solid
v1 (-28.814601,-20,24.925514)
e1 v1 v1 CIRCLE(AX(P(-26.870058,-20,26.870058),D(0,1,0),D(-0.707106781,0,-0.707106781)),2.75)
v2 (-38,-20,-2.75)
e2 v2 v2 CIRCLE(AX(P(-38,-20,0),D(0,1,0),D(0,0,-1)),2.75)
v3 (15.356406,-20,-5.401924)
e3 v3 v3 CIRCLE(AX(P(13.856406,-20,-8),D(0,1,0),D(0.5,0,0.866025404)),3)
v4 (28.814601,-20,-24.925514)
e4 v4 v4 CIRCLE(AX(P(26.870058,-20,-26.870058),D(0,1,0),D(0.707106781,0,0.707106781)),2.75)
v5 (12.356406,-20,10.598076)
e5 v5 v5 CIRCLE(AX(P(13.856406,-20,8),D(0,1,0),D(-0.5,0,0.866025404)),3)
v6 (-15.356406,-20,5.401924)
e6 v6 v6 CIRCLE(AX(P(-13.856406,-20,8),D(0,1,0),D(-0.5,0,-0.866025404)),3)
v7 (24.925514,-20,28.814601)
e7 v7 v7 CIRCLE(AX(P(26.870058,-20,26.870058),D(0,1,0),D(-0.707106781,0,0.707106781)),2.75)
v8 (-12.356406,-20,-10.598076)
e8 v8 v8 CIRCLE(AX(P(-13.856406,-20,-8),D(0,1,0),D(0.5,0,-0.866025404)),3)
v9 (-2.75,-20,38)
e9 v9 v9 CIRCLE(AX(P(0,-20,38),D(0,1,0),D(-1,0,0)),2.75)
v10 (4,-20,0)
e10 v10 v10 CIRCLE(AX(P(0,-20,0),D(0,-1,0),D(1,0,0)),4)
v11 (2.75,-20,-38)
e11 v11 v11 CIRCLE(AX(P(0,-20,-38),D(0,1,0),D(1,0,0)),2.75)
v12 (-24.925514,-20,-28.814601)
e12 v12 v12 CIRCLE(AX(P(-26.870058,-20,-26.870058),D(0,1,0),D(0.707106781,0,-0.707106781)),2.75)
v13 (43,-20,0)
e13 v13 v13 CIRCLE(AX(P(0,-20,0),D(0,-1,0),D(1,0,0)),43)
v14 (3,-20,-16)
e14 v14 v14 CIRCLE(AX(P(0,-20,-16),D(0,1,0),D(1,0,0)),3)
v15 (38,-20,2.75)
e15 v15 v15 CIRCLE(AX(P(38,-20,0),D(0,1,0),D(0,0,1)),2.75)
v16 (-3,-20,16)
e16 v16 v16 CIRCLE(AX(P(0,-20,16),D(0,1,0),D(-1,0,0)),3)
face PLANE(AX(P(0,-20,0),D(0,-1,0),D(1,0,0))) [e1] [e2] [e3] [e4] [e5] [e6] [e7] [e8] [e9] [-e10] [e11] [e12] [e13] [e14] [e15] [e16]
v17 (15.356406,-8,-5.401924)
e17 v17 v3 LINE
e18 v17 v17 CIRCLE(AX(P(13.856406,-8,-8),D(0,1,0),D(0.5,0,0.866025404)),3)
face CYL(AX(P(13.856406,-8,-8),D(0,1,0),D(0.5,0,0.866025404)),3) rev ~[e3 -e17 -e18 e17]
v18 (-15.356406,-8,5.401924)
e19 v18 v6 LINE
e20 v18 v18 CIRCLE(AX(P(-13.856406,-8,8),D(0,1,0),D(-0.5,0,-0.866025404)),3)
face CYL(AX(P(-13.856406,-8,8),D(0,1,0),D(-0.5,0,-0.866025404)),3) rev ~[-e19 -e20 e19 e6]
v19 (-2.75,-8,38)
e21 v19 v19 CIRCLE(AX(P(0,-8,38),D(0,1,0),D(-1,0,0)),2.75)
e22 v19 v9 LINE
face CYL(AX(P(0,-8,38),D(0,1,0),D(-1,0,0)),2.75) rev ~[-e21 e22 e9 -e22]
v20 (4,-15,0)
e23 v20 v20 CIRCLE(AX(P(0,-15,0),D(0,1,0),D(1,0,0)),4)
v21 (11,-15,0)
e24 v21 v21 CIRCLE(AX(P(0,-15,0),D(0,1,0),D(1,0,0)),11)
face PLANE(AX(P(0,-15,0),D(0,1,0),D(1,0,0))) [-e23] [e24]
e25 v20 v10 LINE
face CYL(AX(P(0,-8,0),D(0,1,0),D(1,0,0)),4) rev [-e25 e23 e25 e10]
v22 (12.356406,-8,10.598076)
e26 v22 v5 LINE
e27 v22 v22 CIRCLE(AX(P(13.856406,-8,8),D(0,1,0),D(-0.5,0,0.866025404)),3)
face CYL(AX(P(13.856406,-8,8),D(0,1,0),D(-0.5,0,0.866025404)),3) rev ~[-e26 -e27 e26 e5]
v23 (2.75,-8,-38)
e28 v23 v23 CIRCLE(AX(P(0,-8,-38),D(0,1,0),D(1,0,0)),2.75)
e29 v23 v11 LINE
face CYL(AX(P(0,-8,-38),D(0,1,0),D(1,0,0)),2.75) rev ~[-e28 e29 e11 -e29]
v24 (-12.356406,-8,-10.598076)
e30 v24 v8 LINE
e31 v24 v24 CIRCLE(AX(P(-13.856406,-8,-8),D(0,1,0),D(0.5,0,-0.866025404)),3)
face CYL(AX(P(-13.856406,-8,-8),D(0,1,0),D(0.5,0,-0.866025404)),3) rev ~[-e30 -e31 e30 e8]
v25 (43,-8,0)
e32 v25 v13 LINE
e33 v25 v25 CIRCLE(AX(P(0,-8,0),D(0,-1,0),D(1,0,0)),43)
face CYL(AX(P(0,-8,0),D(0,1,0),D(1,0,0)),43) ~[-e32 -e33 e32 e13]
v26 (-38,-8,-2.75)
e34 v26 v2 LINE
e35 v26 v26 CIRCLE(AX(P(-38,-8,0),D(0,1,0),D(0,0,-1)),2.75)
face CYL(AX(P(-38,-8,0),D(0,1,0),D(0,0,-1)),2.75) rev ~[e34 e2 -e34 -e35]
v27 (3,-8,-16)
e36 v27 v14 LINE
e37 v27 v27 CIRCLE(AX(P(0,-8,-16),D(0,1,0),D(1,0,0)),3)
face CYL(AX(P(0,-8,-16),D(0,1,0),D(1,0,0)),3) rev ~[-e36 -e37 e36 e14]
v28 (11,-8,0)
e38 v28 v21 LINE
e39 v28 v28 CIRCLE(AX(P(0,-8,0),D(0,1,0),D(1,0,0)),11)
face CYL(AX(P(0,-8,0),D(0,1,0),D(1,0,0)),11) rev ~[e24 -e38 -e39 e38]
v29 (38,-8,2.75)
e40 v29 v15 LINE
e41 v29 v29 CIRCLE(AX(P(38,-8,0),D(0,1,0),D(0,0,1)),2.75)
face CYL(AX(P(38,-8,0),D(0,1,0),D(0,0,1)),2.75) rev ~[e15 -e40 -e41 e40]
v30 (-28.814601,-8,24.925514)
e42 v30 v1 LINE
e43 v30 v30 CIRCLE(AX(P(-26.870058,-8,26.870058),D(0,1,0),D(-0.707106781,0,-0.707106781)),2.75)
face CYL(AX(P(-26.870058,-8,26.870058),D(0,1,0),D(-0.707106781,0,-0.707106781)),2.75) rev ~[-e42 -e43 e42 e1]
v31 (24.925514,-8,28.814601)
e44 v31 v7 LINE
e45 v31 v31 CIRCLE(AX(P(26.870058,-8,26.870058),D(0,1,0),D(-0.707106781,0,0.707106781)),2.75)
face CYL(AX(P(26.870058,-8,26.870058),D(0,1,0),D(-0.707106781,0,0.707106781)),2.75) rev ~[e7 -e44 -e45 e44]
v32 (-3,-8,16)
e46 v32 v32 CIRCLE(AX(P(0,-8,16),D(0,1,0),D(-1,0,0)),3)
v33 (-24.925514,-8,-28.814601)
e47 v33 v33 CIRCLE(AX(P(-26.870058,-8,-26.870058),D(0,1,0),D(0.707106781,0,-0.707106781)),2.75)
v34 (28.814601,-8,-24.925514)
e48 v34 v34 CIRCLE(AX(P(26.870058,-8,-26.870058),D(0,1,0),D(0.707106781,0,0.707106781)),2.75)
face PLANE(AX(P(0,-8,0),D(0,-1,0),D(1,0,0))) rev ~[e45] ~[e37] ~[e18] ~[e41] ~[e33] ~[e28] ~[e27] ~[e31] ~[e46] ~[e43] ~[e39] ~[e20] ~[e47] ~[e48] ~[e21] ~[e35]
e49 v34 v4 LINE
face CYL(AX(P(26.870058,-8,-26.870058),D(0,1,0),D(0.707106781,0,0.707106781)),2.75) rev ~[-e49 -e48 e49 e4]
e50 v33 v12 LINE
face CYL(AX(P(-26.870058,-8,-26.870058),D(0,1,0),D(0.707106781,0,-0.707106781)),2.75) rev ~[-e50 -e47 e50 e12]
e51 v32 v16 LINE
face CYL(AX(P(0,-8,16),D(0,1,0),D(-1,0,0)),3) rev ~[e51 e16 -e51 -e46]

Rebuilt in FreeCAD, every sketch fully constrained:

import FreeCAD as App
import Part
import Sketcher

V = App.Vector
Q = App.Units.Quantity

doc = App.newDocument("Part")
body = doc.addObject("PartDesign::Body", "Body")

# Sketch on XZ plane
sketch1 = body.newObject("Sketcher::SketchObject", "Sketch")
sketch1.AttachmentSupport = (doc.getObject("XZ_Plane"), [""])
sketch1.MapMode = "FlatFace"
sketch1.AttachmentOffset = App.Placement(V(0, 0, 8), App.Rotation())
sketch1.addGeometry(Part.Circle(V(0, 0, 0), V(0, 0, 1), 43), False)
sketch1.addGeometry(Part.Circle(V(0, 0, 0), V(0, 0, 1), 4), False)
sketch1.addConstraint(Sketcher.Constraint("Coincident", 0, 3, -1, 1))
sketch1.addConstraint(Sketcher.Constraint("Coincident", 1, 3, -1, 1))
sketch1.addConstraint(Sketcher.Constraint("Diameter", 0, Q("86 mm")))
sketch1.addConstraint(Sketcher.Constraint("Diameter", 1, Q("8 mm")))
pad1 = body.newObject("PartDesign::Pad", "Pad")
pad1.Profile = sketch1
pad1.Length = 12

# Sketch on XZ plane
sketch2 = body.newObject("Sketcher::SketchObject", "Sketch001")
sketch2.AttachmentSupport = (doc.getObject("XZ_Plane"), [""])
sketch2.MapMode = "FlatFace"
sketch2.AttachmentOffset = App.Placement(V(0, 0, 8), App.Rotation())
sketch2.addGeometry(Part.Circle(V(0, 0, 0), V(0, 0, 1), 11), False)
sketch2.addConstraint(Sketcher.Constraint("Coincident", 0, 3, -1, 1))
sketch2.addConstraint(Sketcher.Constraint("Diameter", 0, Q("22 mm")))
pocket1 = body.newObject("PartDesign::Pocket", "Pocket")
pocket1.Profile = sketch2
pocket1.Length = 7
pocket1.Reversed = True

# Sketch on XZ plane
sketch3 = body.newObject("Sketcher::SketchObject", "Sketch002")
sketch3.AttachmentSupport = (doc.getObject("XZ_Plane"), [""])
sketch3.MapMode = "FlatFace"
sketch3.AttachmentOffset = App.Placement(V(0, 0, 8), App.Rotation())
sketch3.addGeometry(Part.Circle(V(0, -16, 0), V(0, 0, 1), 3), False)
sketch3.addConstraint(Sketcher.Constraint("PointOnObject", 0, 3, -2))
sketch3.addConstraint(Sketcher.Constraint("Diameter", 0, Q("6 mm")))
sketch3.addConstraint(Sketcher.Constraint("DistanceY", 0, 3, -1, 1, Q("16 mm")))
pocket2 = body.newObject("PartDesign::Pocket", "Pocket001")
pocket2.Profile = sketch3
pocket2.Type = "ThroughAll"
pocket2.Reversed = True
doc.recompute()

polarpattern = body.newObject("PartDesign::PolarPattern", "PolarPattern")
polarpattern.Originals = [pocket2]
polarpattern.Axis = (doc.getObject("Y_Axis"), [""])
polarpattern.Angle = 360
polarpattern.Occurrences = 6
body.Tip = polarpattern

# Sketch on XZ plane
sketch4 = body.newObject("Sketcher::SketchObject", "Sketch003")
sketch4.AttachmentSupport = (doc.getObject("XZ_Plane"), [""])
sketch4.MapMode = "FlatFace"
sketch4.AttachmentOffset = App.Placement(V(0, 0, 8), App.Rotation())
sketch4.addGeometry(Part.Circle(V(0, -38, 0), V(0, 0, 1), 2.75), False)
sketch4.addConstraint(Sketcher.Constraint("PointOnObject", 0, 3, -2))
sketch4.addConstraint(Sketcher.Constraint("Diameter", 0, Q("5.5 mm")))
sketch4.addConstraint(Sketcher.Constraint("DistanceY", 0, 3, -1, 1, Q("38 mm")))
pocket3 = body.newObject("PartDesign::Pocket", "Pocket002")
pocket3.Profile = sketch4
pocket3.Type = "ThroughAll"
pocket3.Reversed = True
doc.recompute()

polarpattern2 = body.newObject("PartDesign::PolarPattern", "PolarPattern001")
polarpattern2.Originals = [pocket3]
polarpattern2.Axis = (doc.getObject("Y_Axis"), [""])
polarpattern2.Angle = 360
polarpattern2.Occurrences = 8
body.Tip = polarpattern2

doc.recompute()
